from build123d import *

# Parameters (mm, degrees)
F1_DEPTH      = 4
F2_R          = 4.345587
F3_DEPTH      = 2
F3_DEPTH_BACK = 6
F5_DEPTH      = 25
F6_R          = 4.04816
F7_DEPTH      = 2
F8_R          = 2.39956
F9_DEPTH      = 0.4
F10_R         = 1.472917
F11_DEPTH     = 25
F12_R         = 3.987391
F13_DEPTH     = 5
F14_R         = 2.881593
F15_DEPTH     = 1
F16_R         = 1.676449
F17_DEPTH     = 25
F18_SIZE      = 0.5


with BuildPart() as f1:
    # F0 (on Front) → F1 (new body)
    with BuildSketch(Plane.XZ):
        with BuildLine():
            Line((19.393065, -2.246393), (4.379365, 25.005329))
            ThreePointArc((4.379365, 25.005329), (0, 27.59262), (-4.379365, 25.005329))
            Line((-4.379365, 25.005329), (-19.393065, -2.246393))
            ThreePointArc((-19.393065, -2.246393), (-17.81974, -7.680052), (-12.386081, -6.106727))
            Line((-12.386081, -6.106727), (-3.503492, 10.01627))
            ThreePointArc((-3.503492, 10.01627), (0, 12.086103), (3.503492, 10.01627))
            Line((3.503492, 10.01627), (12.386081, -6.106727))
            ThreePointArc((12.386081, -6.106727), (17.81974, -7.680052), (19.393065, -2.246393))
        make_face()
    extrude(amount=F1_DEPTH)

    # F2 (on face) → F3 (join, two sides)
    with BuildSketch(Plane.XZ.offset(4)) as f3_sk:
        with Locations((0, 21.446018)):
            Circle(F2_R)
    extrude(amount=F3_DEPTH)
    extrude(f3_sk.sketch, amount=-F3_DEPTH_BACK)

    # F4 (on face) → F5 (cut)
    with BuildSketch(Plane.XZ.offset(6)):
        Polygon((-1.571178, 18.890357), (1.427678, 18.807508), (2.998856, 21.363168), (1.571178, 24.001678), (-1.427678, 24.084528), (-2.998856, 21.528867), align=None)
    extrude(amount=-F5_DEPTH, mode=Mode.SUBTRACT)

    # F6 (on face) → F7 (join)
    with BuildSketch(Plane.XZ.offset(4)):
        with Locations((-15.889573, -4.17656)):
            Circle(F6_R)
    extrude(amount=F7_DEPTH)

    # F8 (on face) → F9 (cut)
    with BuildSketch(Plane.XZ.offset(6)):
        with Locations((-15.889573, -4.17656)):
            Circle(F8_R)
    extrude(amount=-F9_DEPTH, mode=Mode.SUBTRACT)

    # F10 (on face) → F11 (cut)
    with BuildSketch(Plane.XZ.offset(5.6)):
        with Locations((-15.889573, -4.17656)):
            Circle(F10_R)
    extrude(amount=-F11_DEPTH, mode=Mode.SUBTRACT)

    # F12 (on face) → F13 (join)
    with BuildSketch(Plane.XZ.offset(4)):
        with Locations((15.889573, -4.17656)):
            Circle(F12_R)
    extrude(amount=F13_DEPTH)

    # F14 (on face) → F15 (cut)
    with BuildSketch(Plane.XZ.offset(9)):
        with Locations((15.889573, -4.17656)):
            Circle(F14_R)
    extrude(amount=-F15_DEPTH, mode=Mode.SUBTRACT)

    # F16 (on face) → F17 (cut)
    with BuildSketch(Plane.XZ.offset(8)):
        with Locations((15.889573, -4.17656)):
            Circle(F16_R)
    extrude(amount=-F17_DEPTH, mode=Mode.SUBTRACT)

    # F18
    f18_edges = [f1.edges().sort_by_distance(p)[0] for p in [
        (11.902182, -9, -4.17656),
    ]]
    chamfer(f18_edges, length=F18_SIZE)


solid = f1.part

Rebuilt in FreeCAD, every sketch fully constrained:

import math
import FreeCAD as App
import Part
import Sketcher
from FreeCAD import Vector


def edges_at(feature, points):
    """Names of the edges that pass closest to the given points."""
    edges = feature.Shape.Edges
    near = lambda p: min(range(len(edges)), key=lambda i: edges[i].distToShape(Part.Vertex(*p))[0])
    return sorted({f"Edge{near(p) + 1}" for p in points})


def add_polygon(sketch, points):
    """Adds a closed chain of lines whose ends are joined by coincident constraints."""
    first, n = sketch.GeometryCount, len(points)
    for a, b in zip(points, points[1:] + points[:1]):
        sketch.addGeometry(Part.LineSegment(App.Vector(*a, 0), App.Vector(*b, 0)), False)
    for i in range(n):
        sketch.addConstraint(Sketcher.Constraint("Coincident", first + i, 2, first + (i + 1) % n, 1))

doc = App.newDocument("Part")
params = doc.addObject("Spreadsheet::Sheet", "Params")
for row, (alias, value) in enumerate([
    ("sketch1_radius", "5 mm"),
    ("sketch1_radius2", "4 mm"),
    ("pad1_length", "4 mm"),
    ("pad2_length", "2 mm"),
    ("pad2_length2", "6 mm"),
    ("sketch3_length", "3 mm"),
    ("pocket1_length", "25 mm"),
    ("pad3_length", "2 mm"),
    ("pocket2_length", "0.4 mm"),
    ("pocket3_length", "25 mm"),
    ("pad4_length", "5 mm"),
    ("pocket4_length", "1 mm"),
    ("pocket5_length", "25 mm"),
    ("chamfer_size", "0.5 mm"),
], start=1):
    params.set(f"A{row}", alias)
    params.set(f"B{row}", "=" + value)
    params.setAlias(f"B{row}", alias)

body = doc.addObject("PartDesign::Body", "Body")

sketch1 = body.newObject("Sketcher::SketchObject", "Sketch")
sketch1.AttachmentSupport = (doc.getObject("XZ_Plane"), [""])
sketch1.MapMode = "FlatFace"
sketch1.addGeometry([
    Part.LineSegment(Vector(19.393065, -2.246393, 0), Vector(4.379365, 25.005329, 0)),
    Part.ArcOfCircle(Part.Circle(Vector(0, 22.59262, 0), Vector(0, 0, 1), 5), math.radians(28.851546), math.radians(151.148454)),
    Part.LineSegment(Vector(-4.379365, 25.005329, 0), Vector(-19.393065, -2.246393, 0)),
    Part.ArcOfCircle(Part.Circle(Vector(-15.889573, -4.17656, 0), Vector(0, 0, 1), 4), math.radians(151.148461), math.radians(331.148461)),
    Part.LineSegment(Vector(-12.386081, -6.106727, 0), Vector(-3.503492, 10.01627, 0)),
    Part.ArcOfCircle(Part.Circle(Vector(0, 8.086103, 0), Vector(0, 0, 1), 4), math.radians(28.851541), math.radians(151.148459)),
    Part.LineSegment(Vector(3.503492, 10.01627, 0), Vector(12.386081, -6.106727, 0)),
    Part.ArcOfCircle(Part.Circle(Vector(15.889573, -4.17656, 0), Vector(0, 0, 1), 4), math.radians(-151.148461), math.radians(28.851539)),
], False)
sketch1.addConstraint([
    Sketcher.Constraint("Tangent", 0, 2, 1, 1),
    Sketcher.Constraint("Tangent", 1, 2, 2, 1),
    Sketcher.Constraint("Tangent", 2, 2, 3, 1),
    Sketcher.Constraint("Tangent", 3, 2, 4, 1),
    Sketcher.Constraint("Tangent", 4, 2, 5, 2),
    Sketcher.Constraint("Tangent", 5, 1, 6, 1),
    Sketcher.Constraint("Tangent", 6, 2, 7, 1),
    Sketcher.Constraint("Tangent", 7, 2, 0, 1),
    Sketcher.Constraint("Equal", 3, 5),
    Sketcher.Constraint("Equal", 5, 7),
    Sketcher.Constraint("Symmetric", 3, 3, 7, 3, -2),
    Sketcher.Constraint("PointOnObject", 1, 3, -2),
    Sketcher.Constraint("PointOnObject", 5, 3, -2),
    Sketcher.Constraint("Parallel", 2, 4),
    Sketcher.Constraint("Radius", 1, 5.0),
    Sketcher.Constraint("Radius", 3, 4.0),
    Sketcher.Constraint("DistanceX", 2, 2, 1, 2, 15.0137),
    Sketcher.Constraint("DistanceY", -1, 1, 1, 3, 22.59262),
    Sketcher.Constraint("DistanceY", 3, 3, -1, 1, 4.17656),
])
sketch1.setExpression("Constraints[14]", "Params.sketch1_radius")
sketch1.setExpression("Constraints[15]", "Params.sketch1_radius2")
pad1 = body.newObject("PartDesign::Pad", "Pad")
pad1.Profile = sketch1
pad1.setExpression("Length", "Params.pad1_length")

sketch2 = body.newObject("Sketcher::SketchObject", "Sketch001")
sketch2.AttachmentSupport = (doc.getObject("XZ_Plane"), [""])
sketch2.MapMode = "FlatFace"
sketch2.AttachmentOffset = App.Placement(Vector(0, 0, 4), App.Rotation())
sketch2.addGeometry(Part.Circle(Vector(0, 21.446018, 0), Vector(0, 0, 1), 4.345587), False)
sketch2.addConstraint([
    Sketcher.Constraint("PointOnObject", 0, 3, -2),
    Sketcher.Constraint("Diameter", 0, 8.691174),
    Sketcher.Constraint("DistanceY", -1, 1, 0, 3, 21.446018),
])
pad2 = body.newObject("PartDesign::Pad", "Pad001")
pad2.Profile = sketch2
pad2.Type = "TwoLengths"
pad2.setExpression("Length", "Params.pad2_length")
pad2.setExpression("Length2", "Params.pad2_length2")

sketch3 = body.newObject("Sketcher::SketchObject", "Sketch002")
sketch3.AttachmentSupport = (doc.getObject("XZ_Plane"), [""])
sketch3.MapMode = "FlatFace"
sketch3.AttachmentOffset = App.Placement(Vector(0, 0, 6), App.Rotation())
add_polygon(sketch3, [(-1.571178, 18.890357), (1.427678, 18.807508), (2.998856, 21.363168), (1.571178, 24.001678), (-1.427678, 24.084528), (-2.998856, 21.528867)])
sketch3.addConstraint([
    Sketcher.Constraint("Parallel", 0, 3),
    Sketcher.Constraint("Parallel", 1, 4),
    Sketcher.Constraint("Parallel", 2, 5),
    Sketcher.Constraint("Equal", 0, 1),
    Sketcher.Constraint("Equal", 1, 2),
    Sketcher.Constraint("Equal", 2, 3),
    Sketcher.Constraint("Distance", 0, 3.0),
    Sketcher.Constraint("DistanceX", 0, 2, 2, 2, 0.1435),
    Sketcher.Constraint("DistanceY", 1, 2, 4, 2, 0.165699),
    Sketcher.Constraint("DistanceY", -1, 1, 1, 2, 21.363168),
    Sketcher.Constraint("DistanceY", 0, 2, 1, 2, 2.55566),
    Sketcher.Constraint("DistanceX", -1, 1, 0, 2, 1.427678),
])
sketch3.setExpression("Constraints[12]", "Params.sketch3_length")
pocket1 = body.newObject("PartDesign::Pocket", "Pocket")
pocket1.Profile = sketch3
pocket1.setExpression("Length", "Params.pocket1_length")

sketch4 = body.newObject("Sketcher::SketchObject", "Sketch003")
sketch4.AttachmentSupport = (doc.getObject("XZ_Plane"), [""])
sketch4.MapMode = "FlatFace"
sketch4.AttachmentOffset = App.Placement(Vector(0, 0, 4), App.Rotation())
sketch4.addGeometry(Part.Circle(Vector(-15.889573, -4.17656, 0), Vector(0, 0, 1), 4.04816), False)
sketch4.addConstraint([
    Sketcher.Constraint("Diameter", 0, 8.09632),
    Sketcher.Constraint("DistanceY", 0, 3, -1, 1, 4.17656),
    Sketcher.Constraint("DistanceX", 0, 3, -1, 1, 15.889573),
])
pad3 = body.newObject("PartDesign::Pad", "Pad002")
pad3.Profile = sketch4
pad3.setExpression("Length", "Params.pad3_length")

sketch5 = body.newObject("Sketcher::SketchObject", "Sketch004")
sketch5.AttachmentSupport = (doc.getObject("XZ_Plane"), [""])
sketch5.MapMode = "FlatFace"
sketch5.AttachmentOffset = App.Placement(Vector(0, 0, 6), App.Rotation())
sketch5.addGeometry(Part.Circle(Vector(-15.889573, -4.17656, 0), Vector(0, 0, 1), 2.39956), False)
sketch5.addConstraint([
    Sketcher.Constraint("Diameter", 0, 4.79912),
    Sketcher.Constraint("DistanceY", 0, 3, -1, 1, 4.17656),
    Sketcher.Constraint("DistanceX", 0, 3, -1, 1, 15.889573),
])
pocket2 = body.newObject("PartDesign::Pocket", "Pocket001")
pocket2.Profile = sketch5
pocket2.setExpression("Length", "Params.pocket2_length")

sketch6 = body.newObject("Sketcher::SketchObject", "Sketch005")
sketch6.AttachmentSupport = (doc.getObject("XZ_Plane"), [""])
sketch6.MapMode = "FlatFace"
sketch6.AttachmentOffset = App.Placement(Vector(0, 0, 5.6), App.Rotation())
sketch6.addGeometry(Part.Circle(Vector(-15.889573, -4.17656, 0), Vector(0, 0, 1), 1.472917), False)
sketch6.addConstraint([
    Sketcher.Constraint("Diameter", 0, 2.945834),
    Sketcher.Constraint("DistanceY", 0, 3, -1, 1, 4.17656),
    Sketcher.Constraint("DistanceX", 0, 3, -1, 1, 15.889573),
])
pocket3 = body.newObject("PartDesign::Pocket", "Pocket002")
pocket3.Profile = sketch6
pocket3.setExpression("Length", "Params.pocket3_length")

sketch7 = body.newObject("Sketcher::SketchObject", "Sketch006")
sketch7.AttachmentSupport = (doc.getObject("XZ_Plane"), [""])
sketch7.MapMode = "FlatFace"
sketch7.AttachmentOffset = App.Placement(Vector(0, 0, 4), App.Rotation())
sketch7.addGeometry(Part.Circle(Vector(15.889573, -4.17656, 0), Vector(0, 0, 1), 3.987391), False)
sketch7.addConstraint([
    Sketcher.Constraint("Diameter", 0, 7.974782),
    Sketcher.Constraint("DistanceY", 0, 3, -1, 1, 4.17656),
    Sketcher.Constraint("DistanceX", -1, 1, 0, 3, 15.889573),
])
pad4 = body.newObject("PartDesign::Pad", "Pad003")
pad4.Profile = sketch7
pad4.setExpression("Length", "Params.pad4_length")

sketch8 = body.newObject("Sketcher::SketchObject", "Sketch007")
sketch8.AttachmentSupport = (doc.getObject("XZ_Plane"), [""])
sketch8.MapMode = "FlatFace"
sketch8.AttachmentOffset = App.Placement(Vector(0, 0, 9), App.Rotation())
sketch8.addGeometry(Part.Circle(Vector(15.889573, -4.17656, 0), Vector(0, 0, 1), 2.881593), False)
sketch8.addConstraint([
    Sketcher.Constraint("Diameter", 0, 5.763186),
    Sketcher.Constraint("DistanceY", 0, 3, -1, 1, 4.17656),
    Sketcher.Constraint("DistanceX", -1, 1, 0, 3, 15.889573),
])
pocket4 = body.newObject("PartDesign::Pocket", "Pocket003")
pocket4.Profile = sketch8
pocket4.setExpression("Length", "Params.pocket4_length")

sketch9 = body.newObject("Sketcher::SketchObject", "Sketch008")
sketch9.AttachmentSupport = (doc.getObject("XZ_Plane"), [""])
sketch9.MapMode = "FlatFace"
sketch9.AttachmentOffset = App.Placement(Vector(0, 0, 8), App.Rotation())
sketch9.addGeometry(Part.Circle(Vector(15.889573, -4.17656, 0), Vector(0, 0, 1), 1.676449), False)
sketch9.addConstraint([
    Sketcher.Constraint("Diameter", 0, 3.352898),
    Sketcher.Constraint("DistanceY", 0, 3, -1, 1, 4.17656),
    Sketcher.Constraint("DistanceX", -1, 1, 0, 3, 15.889573),
])
pocket5 = body.newObject("PartDesign::Pocket", "Pocket004")
pocket5.Profile = sketch9
pocket5.setExpression("Length", "Params.pocket5_length")
doc.recompute()

chamfer = body.newObject("PartDesign::Chamfer", "Chamfer")
chamfer.Base = (pocket5, edges_at(pocket5, [(11.902, -9, -4.177)]))
chamfer.setExpression("Size", "Params.chamfer_size")

doc.recompute()
